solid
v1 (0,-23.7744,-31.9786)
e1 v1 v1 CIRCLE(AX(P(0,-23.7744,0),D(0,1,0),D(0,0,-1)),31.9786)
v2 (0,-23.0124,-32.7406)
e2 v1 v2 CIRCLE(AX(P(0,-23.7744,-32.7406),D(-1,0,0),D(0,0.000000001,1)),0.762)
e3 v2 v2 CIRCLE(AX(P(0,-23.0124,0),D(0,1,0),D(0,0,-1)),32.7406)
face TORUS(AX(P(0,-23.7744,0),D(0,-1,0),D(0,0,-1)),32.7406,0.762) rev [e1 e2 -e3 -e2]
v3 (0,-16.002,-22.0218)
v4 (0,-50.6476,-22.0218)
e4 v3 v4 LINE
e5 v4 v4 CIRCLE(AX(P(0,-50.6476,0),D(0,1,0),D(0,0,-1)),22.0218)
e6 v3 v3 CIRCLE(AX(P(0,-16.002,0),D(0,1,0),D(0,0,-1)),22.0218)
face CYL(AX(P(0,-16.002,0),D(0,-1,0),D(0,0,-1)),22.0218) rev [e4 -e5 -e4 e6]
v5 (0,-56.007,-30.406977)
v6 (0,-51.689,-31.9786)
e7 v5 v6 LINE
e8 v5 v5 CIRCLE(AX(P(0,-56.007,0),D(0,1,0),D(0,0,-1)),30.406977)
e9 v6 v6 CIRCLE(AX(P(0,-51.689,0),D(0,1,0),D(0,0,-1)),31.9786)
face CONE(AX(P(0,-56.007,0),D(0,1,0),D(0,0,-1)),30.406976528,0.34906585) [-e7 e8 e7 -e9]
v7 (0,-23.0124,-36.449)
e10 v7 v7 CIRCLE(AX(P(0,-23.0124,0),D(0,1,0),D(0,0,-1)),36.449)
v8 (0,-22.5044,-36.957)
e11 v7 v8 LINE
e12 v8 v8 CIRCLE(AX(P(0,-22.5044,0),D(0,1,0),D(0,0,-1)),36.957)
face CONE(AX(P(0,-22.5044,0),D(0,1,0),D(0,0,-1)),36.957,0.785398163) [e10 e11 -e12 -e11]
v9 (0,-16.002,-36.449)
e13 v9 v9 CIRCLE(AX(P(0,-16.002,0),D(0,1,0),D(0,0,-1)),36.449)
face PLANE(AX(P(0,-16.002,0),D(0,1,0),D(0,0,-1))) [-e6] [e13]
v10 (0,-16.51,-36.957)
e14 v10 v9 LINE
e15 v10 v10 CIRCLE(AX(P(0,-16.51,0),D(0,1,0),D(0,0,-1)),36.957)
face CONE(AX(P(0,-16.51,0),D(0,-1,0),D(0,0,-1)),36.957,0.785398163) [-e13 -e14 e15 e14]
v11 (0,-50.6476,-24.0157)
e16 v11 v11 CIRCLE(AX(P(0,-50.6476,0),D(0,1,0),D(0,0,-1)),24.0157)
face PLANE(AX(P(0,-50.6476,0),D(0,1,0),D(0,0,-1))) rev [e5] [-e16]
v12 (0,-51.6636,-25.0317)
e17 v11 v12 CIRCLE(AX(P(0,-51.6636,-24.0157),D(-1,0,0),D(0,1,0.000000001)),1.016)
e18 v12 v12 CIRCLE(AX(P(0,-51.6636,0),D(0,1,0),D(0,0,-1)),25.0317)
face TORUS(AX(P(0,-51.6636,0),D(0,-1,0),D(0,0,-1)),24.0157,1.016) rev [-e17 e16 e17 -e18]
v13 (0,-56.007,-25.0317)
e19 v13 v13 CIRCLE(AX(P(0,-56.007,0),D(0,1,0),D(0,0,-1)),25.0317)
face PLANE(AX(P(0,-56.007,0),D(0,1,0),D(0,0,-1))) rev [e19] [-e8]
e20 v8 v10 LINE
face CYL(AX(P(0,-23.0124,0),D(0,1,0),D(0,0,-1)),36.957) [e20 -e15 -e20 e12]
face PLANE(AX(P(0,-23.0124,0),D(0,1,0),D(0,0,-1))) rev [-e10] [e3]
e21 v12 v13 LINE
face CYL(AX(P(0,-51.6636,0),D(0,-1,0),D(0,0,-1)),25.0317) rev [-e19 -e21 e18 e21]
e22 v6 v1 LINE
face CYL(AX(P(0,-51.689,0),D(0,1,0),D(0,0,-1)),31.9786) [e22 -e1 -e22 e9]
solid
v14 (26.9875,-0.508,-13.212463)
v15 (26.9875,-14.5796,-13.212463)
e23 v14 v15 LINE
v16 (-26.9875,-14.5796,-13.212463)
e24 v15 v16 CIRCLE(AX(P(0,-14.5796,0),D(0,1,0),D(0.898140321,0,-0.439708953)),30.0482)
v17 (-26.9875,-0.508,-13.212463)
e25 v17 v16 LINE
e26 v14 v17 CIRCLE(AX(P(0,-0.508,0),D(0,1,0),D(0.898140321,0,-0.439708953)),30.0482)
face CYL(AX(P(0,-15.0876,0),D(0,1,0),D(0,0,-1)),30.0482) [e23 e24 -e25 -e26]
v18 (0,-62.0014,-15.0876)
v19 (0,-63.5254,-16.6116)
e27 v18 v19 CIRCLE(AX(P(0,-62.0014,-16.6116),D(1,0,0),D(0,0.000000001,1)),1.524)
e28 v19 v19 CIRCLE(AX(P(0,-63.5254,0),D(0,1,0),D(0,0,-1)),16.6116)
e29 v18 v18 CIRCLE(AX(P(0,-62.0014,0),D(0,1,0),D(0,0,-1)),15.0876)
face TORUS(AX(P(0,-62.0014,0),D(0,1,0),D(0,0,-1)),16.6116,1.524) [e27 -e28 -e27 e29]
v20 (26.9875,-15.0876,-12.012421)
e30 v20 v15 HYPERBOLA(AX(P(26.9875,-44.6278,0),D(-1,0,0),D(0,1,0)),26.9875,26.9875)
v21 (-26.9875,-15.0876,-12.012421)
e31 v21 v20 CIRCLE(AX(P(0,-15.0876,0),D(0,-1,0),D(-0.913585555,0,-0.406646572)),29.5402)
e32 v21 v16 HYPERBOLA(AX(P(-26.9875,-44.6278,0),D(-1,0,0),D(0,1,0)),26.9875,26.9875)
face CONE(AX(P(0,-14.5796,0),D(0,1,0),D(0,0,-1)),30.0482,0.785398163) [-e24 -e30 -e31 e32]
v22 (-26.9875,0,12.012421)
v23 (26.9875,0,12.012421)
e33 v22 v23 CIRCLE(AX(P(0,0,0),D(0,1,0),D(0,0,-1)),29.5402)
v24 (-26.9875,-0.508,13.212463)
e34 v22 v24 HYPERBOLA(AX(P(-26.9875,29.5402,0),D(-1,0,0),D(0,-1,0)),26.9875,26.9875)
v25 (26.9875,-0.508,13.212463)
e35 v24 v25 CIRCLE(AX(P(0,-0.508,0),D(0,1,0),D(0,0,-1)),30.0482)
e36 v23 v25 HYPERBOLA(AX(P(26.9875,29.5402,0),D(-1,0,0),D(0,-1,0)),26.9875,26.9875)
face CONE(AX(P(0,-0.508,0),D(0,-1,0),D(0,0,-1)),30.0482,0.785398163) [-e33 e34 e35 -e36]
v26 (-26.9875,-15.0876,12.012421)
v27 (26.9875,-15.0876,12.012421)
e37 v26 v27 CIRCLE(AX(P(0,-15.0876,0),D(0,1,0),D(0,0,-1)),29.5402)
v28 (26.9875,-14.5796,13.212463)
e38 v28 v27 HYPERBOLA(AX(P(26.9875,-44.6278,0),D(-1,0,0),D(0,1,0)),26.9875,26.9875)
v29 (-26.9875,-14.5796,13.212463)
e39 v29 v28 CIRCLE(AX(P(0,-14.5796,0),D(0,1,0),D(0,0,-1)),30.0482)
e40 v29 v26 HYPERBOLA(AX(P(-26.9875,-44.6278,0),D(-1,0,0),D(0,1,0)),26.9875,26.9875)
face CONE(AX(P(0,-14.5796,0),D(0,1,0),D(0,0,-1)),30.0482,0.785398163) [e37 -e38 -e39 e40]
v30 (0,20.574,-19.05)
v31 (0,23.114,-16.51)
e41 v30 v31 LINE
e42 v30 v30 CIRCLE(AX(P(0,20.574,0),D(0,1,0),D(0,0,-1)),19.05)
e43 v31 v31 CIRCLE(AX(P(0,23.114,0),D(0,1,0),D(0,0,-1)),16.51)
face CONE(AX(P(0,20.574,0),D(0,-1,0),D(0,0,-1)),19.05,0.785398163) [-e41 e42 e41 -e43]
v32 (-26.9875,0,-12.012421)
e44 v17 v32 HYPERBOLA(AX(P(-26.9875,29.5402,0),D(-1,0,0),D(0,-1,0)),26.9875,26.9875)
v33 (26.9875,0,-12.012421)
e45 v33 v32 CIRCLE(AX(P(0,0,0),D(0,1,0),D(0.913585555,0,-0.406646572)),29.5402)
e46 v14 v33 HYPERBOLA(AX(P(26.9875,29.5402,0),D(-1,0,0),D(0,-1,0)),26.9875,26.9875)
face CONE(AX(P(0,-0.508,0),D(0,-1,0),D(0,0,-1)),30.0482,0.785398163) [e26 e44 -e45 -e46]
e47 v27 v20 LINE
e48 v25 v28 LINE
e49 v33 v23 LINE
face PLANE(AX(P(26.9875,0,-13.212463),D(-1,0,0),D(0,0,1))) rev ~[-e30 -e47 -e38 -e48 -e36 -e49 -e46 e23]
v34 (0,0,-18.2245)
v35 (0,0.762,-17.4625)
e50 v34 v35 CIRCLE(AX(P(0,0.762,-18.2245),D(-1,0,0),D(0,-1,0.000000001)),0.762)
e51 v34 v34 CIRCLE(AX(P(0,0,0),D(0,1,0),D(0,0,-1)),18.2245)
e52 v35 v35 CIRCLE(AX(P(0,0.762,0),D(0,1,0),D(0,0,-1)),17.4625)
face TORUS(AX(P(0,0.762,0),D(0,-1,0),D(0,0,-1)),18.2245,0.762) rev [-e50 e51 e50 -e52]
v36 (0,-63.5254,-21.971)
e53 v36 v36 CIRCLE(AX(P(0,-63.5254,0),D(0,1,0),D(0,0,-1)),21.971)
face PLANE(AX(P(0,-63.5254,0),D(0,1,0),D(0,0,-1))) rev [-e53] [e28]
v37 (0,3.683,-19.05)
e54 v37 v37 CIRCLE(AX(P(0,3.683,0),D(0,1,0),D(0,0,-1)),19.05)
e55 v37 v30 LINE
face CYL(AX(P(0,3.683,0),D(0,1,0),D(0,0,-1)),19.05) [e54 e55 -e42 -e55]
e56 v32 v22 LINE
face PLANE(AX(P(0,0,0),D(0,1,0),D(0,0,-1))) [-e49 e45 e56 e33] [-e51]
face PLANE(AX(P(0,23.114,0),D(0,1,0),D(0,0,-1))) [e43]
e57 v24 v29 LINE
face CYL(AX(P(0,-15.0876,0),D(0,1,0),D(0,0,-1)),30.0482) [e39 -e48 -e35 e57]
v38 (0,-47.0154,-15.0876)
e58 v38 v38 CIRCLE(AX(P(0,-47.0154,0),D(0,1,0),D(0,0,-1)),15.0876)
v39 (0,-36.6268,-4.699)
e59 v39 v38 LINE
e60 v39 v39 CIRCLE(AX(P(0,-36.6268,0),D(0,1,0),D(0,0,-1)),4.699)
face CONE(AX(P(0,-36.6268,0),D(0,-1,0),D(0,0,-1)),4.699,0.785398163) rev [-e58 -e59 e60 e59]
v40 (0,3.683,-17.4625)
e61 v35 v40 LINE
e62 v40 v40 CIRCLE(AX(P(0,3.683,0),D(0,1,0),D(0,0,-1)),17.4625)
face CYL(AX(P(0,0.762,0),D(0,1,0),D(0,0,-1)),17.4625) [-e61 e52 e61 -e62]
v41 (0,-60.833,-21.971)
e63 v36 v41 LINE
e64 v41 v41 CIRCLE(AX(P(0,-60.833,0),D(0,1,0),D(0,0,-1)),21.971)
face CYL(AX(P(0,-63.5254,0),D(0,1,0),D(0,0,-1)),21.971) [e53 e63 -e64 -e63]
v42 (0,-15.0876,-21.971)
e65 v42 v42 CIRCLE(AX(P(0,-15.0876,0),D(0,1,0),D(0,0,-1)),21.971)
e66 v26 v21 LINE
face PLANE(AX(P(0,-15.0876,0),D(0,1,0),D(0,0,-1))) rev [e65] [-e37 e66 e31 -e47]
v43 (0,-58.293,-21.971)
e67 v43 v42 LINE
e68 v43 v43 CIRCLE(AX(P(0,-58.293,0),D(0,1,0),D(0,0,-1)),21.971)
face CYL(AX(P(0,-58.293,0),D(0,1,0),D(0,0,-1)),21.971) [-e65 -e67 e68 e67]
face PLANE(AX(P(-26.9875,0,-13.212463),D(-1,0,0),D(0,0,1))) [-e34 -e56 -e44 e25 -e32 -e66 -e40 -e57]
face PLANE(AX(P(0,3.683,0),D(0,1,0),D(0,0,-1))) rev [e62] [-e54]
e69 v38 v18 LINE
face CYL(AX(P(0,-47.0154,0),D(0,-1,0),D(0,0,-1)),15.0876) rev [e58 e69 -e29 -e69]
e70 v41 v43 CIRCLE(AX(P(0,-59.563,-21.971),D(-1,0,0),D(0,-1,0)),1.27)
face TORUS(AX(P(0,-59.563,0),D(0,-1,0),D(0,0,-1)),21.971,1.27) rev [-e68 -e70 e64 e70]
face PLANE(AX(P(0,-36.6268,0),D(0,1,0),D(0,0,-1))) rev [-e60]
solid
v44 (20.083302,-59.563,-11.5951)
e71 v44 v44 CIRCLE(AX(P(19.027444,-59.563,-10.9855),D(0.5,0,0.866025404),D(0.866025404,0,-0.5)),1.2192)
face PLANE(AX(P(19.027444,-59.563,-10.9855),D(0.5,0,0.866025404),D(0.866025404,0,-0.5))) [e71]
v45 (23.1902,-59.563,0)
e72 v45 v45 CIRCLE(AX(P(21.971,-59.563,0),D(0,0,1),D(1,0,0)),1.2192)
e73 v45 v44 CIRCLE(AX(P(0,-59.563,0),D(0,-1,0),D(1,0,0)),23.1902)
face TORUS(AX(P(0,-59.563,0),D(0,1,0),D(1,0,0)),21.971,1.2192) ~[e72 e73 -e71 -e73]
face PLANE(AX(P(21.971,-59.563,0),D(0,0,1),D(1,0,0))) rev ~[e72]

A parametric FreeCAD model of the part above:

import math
import FreeCAD as App
import Part
import Sketcher
Q = App.Units.Quantity


def edges_at(feature, points):
    """Names of the edges that pass closest to the given points."""
    edges = feature.Shape.Edges
    near = lambda p: min(range(len(edges)), key=lambda i: edges[i].distToShape(Part.Vertex(*p))[0])
    return sorted({f"Edge{near(p) + 1}" for p in points})

doc = App.newDocument("Part")
params = doc.addObject("Spreadsheet::Sheet", "Params")
for row, (alias, value) in enumerate([
    ("sketch1_radius", "0.06 in"),
    ("sketch1_radius2", "0.05 in"),
    ("sketch1_radius3", "0.03 in"),
    ("sketch1_width", "0.75 in"),
    ("sketch1_height", "0.59 in"),
    ("revolution_angle", "360 deg"),
    ("chamfer_size", "0.02 in"),
    ("chamfer2_size", "0.1 in"),
    ("sketch2_radius", "1.183 in"),
    ("sketch3_radius", "0.04 in"),
    ("sketch3_radius2", "0.03 in"),
    ("sketch3_width", "0.166 in"),
    ("sketch3_width2", "0.588 in"),
    ("sketch3_height", "1.364 in"),
    ("revolution2_angle", "360 deg"),
    ("chamfer3_size", "0.02 in"),
    ("sketch4_diameter", "0.096 in"),
    ("revolution3_angle", "330 deg"),
], start=1):
    params.set(f"A{row}", alias)
    params.set(f"B{row}", "=" + value)
    params.setAlias(f"B{row}", alias)

body = doc.addObject("PartDesign::Body", "Body")

sketch1 = body.newObject("Sketcher::SketchObject", "Sketch")
sketch1.AttachmentSupport = (doc.getObject("XY_Plane"), [""])
sketch1.MapMode = "FlatFace"
sketch1.addGeometry([
    Part.LineSegment(App.Vector(0, 23.1, 0), App.Vector(0, -36.6, 0)),
    Part.LineSegment(App.Vector(0, -36.6, 0), App.Vector(4.7, -36.6, 0)),
    Part.LineSegment(App.Vector(4.7, -36.6, 0), App.Vector(15.1, -47, 0)),
    Part.LineSegment(App.Vector(15.1, -47, 0), App.Vector(15.1, -62, 0)),
    Part.ArcOfCircle(Part.Circle(App.Vector(16.6, -62, 0), App.Vector(0, 0, 1), 1.5), math.radians(180), math.radians(270)),
    Part.LineSegment(App.Vector(16.6, -63.5, 0), App.Vector(22, -63.5, 0)),
    Part.LineSegment(App.Vector(22, -63.5, 0), App.Vector(22, -60.8, 0)),
    Part.ArcOfCircle(Part.Circle(App.Vector(22, -59.6, 0), App.Vector(0, 0, 1), 1.3), math.radians(90), math.radians(270)),
    Part.LineSegment(App.Vector(22, -58.3, 0), App.Vector(22, -15.1, 0)),
    Part.LineSegment(App.Vector(22, -15.1, 0), App.Vector(30, -15.1, 0)),
    Part.LineSegment(App.Vector(30, -15.1, 0), App.Vector(30, 0, 0)),
    Part.LineSegment(App.Vector(30, 0, 0), App.Vector(18.2, 0, 0)),
    Part.ArcOfCircle(Part.Circle(App.Vector(18.2, 0.8, 0), App.Vector(0, 0, 1), 0.8), math.radians(-180), math.radians(-90)),
    Part.LineSegment(App.Vector(17.5, 0.8, 0), App.Vector(17.5, 3.7, 0)),
    Part.LineSegment(App.Vector(17.5, 3.7, 0), App.Vector(19.1, 3.7, 0)),
    Part.LineSegment(App.Vector(19.1, 3.7, 0), App.Vector(19.1, 23.1, 0)),
    Part.LineSegment(App.Vector(19.1, 23.1, 0), App.Vector(0, 23.1, 0)),
], False)
sketch1.addConstraint([
    Sketcher.Constraint("Coincident", 0, 2, 1, 1),
    Sketcher.Constraint("Coincident", 1, 2, 2, 1),
    Sketcher.Constraint("Coincident", 2, 2, 3, 1),
    Sketcher.Constraint("Tangent", 3, 2, 4, 1),
    Sketcher.Constraint("Tangent", 4, 2, 5, 1),
    Sketcher.Constraint("Coincident", 5, 2, 6, 1),
    Sketcher.Constraint("Coincident", 6, 2, 7, 2),
    Sketcher.Constraint("Coincident", 7, 1, 8, 1),
    Sketcher.Constraint("Coincident", 8, 2, 9, 1),
    Sketcher.Constraint("Coincident", 9, 2, 10, 1),
    Sketcher.Constraint("Coincident", 10, 2, 11, 1),
    Sketcher.Constraint("Tangent", 11, 2, 12, 2),
    Sketcher.Constraint("Tangent", 12, 1, 13, 1),
    Sketcher.Constraint("Coincident", 13, 2, 14, 1),
    Sketcher.Constraint("Coincident", 14, 2, 15, 1),
    Sketcher.Constraint("Coincident", 15, 2, 16, 1),
    Sketcher.Constraint("Coincident", 16, 2, 0, 1),
    Sketcher.Constraint("Vertical", 0),
    Sketcher.Constraint("Horizontal", 1),
    Sketcher.Constraint("Vertical", 3),
    Sketcher.Constraint("Horizontal", 5),
    Sketcher.Constraint("Vertical", 6),
    Sketcher.Constraint("Vertical", 8),
    Sketcher.Constraint("Horizontal", 9),
    Sketcher.Constraint("Vertical", 10),
    Sketcher.Constraint("Horizontal", 11),
    Sketcher.Constraint("Vertical", 13),
    Sketcher.Constraint("Horizontal", 14),
    Sketcher.Constraint("Vertical", 15),
    Sketcher.Constraint("Horizontal", 16),
    Sketcher.Constraint("PointOnObject", 0, 2, -2),
    Sketcher.Constraint("PointOnObject", 10, 2, -1),
    Sketcher.Constraint("Vertical", 7, 3, 5, 2),
    Sketcher.Constraint("Vertical", 6, 2, 7, 1),
    Sketcher.Constraint("Radius", 4, Q("0.06 in")),
    Sketcher.Constraint("Radius", 7, Q("0.05 in")),
    Sketcher.Constraint("Radius", 12, Q("0.03 in")),
    Sketcher.Constraint("Angle", 2, Q("-45 deg")),
    Sketcher.Constraint("DistanceX", 16, 2, 16, 1, Q("0.75 in")),
    Sketcher.Constraint("DistanceY", 3, 2, 3, 1, Q("0.59 in")),
    Sketcher.Constraint("DistanceX", 1, 1, 1, 2, Q("0.185 in")),
    Sketcher.Constraint("DistanceX", 5, 1, 5, 2, Q("0.211 in")),
    Sketcher.Constraint("DistanceX", 9, 1, 9, 2, Q("0.318 in")),
    Sketcher.Constraint("DistanceX", 14, 1, 14, 2, Q("0.0625 in")),
    Sketcher.Constraint("DistanceY", 0, 2, 0, 1, Q("2.352 in")),
    Sketcher.Constraint("DistanceY", 6, 1, 6, 2, Q("0.106 in")),
    Sketcher.Constraint("DistanceY", 8, 1, 8, 2, Q("1.701 in")),
    Sketcher.Constraint("DistanceY", 10, 1, 10, 2, Q("0.594 in")),
    Sketcher.Constraint("DistanceY", 13, 1, 13, 2, Q("0.115 in")),
    Sketcher.Constraint("DistanceY", 15, 1, 15, 2, Q("0.765 in")),
])
sketch1.setExpression("Constraints[34]", "Params.sketch1_radius")
sketch1.setExpression("Constraints[35]", "Params.sketch1_radius2")
sketch1.setExpression("Constraints[36]", "Params.sketch1_radius3")
sketch1.setExpression("Constraints[38]", "Params.sketch1_width")
sketch1.setExpression("Constraints[39]", "Params.sketch1_height")
revolution = body.newObject("PartDesign::Revolution", "Revolution")
revolution.Profile = sketch1
revolution.ReferenceAxis = (sketch1, ["V_Axis"])
revolution.setExpression("Angle", "Params.revolution_angle")
doc.recompute()

chamfer = body.newObject("PartDesign::Chamfer", "Chamfer")
chamfer.Base = (revolution, edges_at(revolution, [(0, -15.088, 30.048), (0, 0, 30.048)]))
chamfer.setExpression("Size", "Params.chamfer_size")
doc.recompute()

chamfer2 = body.newObject("PartDesign::Chamfer", "Chamfer001")
chamfer2.Base = (chamfer, edges_at(chamfer, [(0, 23.114, 19.05)]))
chamfer2.setExpression("Size", "Params.chamfer2_size")

sketch2 = body.newObject("Sketcher::SketchObject", "Sketch001")
sketch2.AttachmentSupport = (doc.getObject("XZ_Plane"), [""])
sketch2.MapMode = "FlatFace"
sketch2.addGeometry([
    Part.LineSegment(App.Vector(-27, 13, 0), App.Vector(-27, -13, 0)),
    Part.ArcOfCircle(Part.Circle(App.Vector(0, 0, 0), App.Vector(0, 0, 1), 30), math.radians(154), math.radians(206)),
    Part.LineSegment(App.Vector(27, -13, 0), App.Vector(27, 13, 0)),
    Part.ArcOfCircle(Part.Circle(App.Vector(0, 0, 0), App.Vector(0, 0, 1), 30), math.radians(-26), math.radians(26)),
], False)
sketch2.addConstraint([
    Sketcher.Constraint("Coincident", 0, 1, 1, 1),
    Sketcher.Constraint("Coincident", 1, 2, 0, 2),
    Sketcher.Constraint("Coincident", 2, 1, 3, 1),
    Sketcher.Constraint("Coincident", 3, 2, 2, 2),
    Sketcher.Constraint("Vertical", 0),
    Sketcher.Constraint("Vertical", 2),
    Sketcher.Constraint("Coincident", 1, 3, -1, 1),
    Sketcher.Constraint("Coincident", 3, 3, -1, 1),
    Sketcher.Constraint("Equal", 1, 3),
    Sketcher.Constraint("Horizontal", 1, 2, 2, 1),
    Sketcher.Constraint("Radius", 1, Q("1.183 in")),
    Sketcher.Constraint("DistanceX", 0, 1, -1, 1, Q("1.0625 in")),
])
sketch2.setExpression("Constraints[10]", "Params.sketch2_radius")
pocket1 = body.newObject("PartDesign::Pocket", "Pocket")
pocket1.Profile = sketch2
pocket1.Type = "ThroughAll"
pocket1.Reversed = True
body2 = doc.addObject("PartDesign::Body", "Body001")

sketch3 = body2.newObject("Sketcher::SketchObject", "Sketch002")
sketch3.AttachmentSupport = (doc.getObject("XY_Plane001"), [""])
sketch3.MapMode = "FlatFace"
sketch3.addGeometry([
    Part.LineSegment(App.Vector(22, -16, 0), App.Vector(22, -50.6, 0)),
    Part.LineSegment(App.Vector(22, -50.6, 0), App.Vector(24, -50.6, 0)),
    Part.ArcOfCircle(Part.Circle(App.Vector(24, -51.7, 0), App.Vector(0, 0, 1), 1), math.radians(0), math.radians(90)),
    Part.LineSegment(App.Vector(25, -51.7, 0), App.Vector(25, -56, 0)),
    Part.LineSegment(App.Vector(25, -56, 0), App.Vector(30.4, -56, 0)),
    Part.LineSegment(App.Vector(30.4, -56, 0), App.Vector(32, -51.7, 0)),
    Part.LineSegment(App.Vector(32, -51.7, 0), App.Vector(32, -23.8, 0)),
    Part.ArcOfCircle(Part.Circle(App.Vector(32.7, -23.8, 0), App.Vector(0, 0, 1), 0.8), math.radians(90), math.radians(180)),
    Part.LineSegment(App.Vector(32.7, -23, 0), App.Vector(37, -23, 0)),
    Part.LineSegment(App.Vector(37, -23, 0), App.Vector(37, -16, 0)),
    Part.LineSegment(App.Vector(37, -16, 0), App.Vector(22, -16, 0)),
], False)
sketch3.addConstraint([
    Sketcher.Constraint("Coincident", 0, 2, 1, 1),
    Sketcher.Constraint("Tangent", 1, 2, 2, 2),
    Sketcher.Constraint("Tangent", 2, 1, 3, 1),
    Sketcher.Constraint("Coincident", 3, 2, 4, 1),
    Sketcher.Constraint("Coincident", 4, 2, 5, 1),
    Sketcher.Constraint("Coincident", 5, 2, 6, 1),
    Sketcher.Constraint("Tangent", 6, 2, 7, 2),
    Sketcher.Constraint("Tangent", 7, 1, 8, 1),
    Sketcher.Constraint("Coincident", 8, 2, 9, 1),
    Sketcher.Constraint("Coincident", 9, 2, 10, 1),
    Sketcher.Constraint("Coincident", 10, 2, 0, 1),
    Sketcher.Constraint("Vertical", 0),
    Sketcher.Constraint("Horizontal", 1),
    Sketcher.Constraint("Vertical", 3),
    Sketcher.Constraint("Horizontal", 4),
    Sketcher.Constraint("Vertical", 6),
    Sketcher.Constraint("Horizontal", 8),
    Sketcher.Constraint("Vertical", 9),
    Sketcher.Constraint("Horizontal", 10),
    Sketcher.Constraint("Radius", 2, Q("0.04 in")),
    Sketcher.Constraint("Radius", 7, Q("0.03 in")),
    Sketcher.Constraint("Angle", 5, Q("70 deg")),
    Sketcher.Constraint("DistanceX", 8, 1, 8, 2, Q("0.166 in")),
    Sketcher.Constraint("DistanceX", 10, 2, 10, 1, Q("0.588 in")),
    Sketcher.Constraint("DistanceY", 0, 2, 0, 1, Q("1.364 in")),
    Sketcher.Constraint("DistanceY", 3, 2, 3, 1, Q("0.171 in")),
    Sketcher.Constraint("DistanceY", 6, 1, 6, 2, Q("1.099 in")),
    Sketcher.Constraint("DistanceY", 9, 1, 9, 2, Q("0.276 in")),
    Sketcher.Constraint("DistanceY", 9, 2, -1, 1, Q("0.63 in")),
    Sketcher.Constraint("DistanceX", 1, 1, 1, 2, Q("0.0785 in")),
    Sketcher.Constraint("DistanceX", -1, 1, 7, 3, Q("1.289 in")),
])
sketch3.setExpression("Constraints[19]", "Params.sketch3_radius")
sketch3.setExpression("Constraints[20]", "Params.sketch3_radius2")
sketch3.setExpression("Constraints[22]", "Params.sketch3_width")
sketch3.setExpression("Constraints[23]", "Params.sketch3_width2")
sketch3.setExpression("Constraints[24]", "Params.sketch3_height")
revolution2 = body2.newObject("PartDesign::Revolution", "Revolution001")
revolution2.Profile = sketch3
revolution2.ReferenceAxis = (sketch3, ["V_Axis"])
revolution2.setExpression("Angle", "Params.revolution2_angle")
doc.recompute()

chamfer3 = body2.newObject("PartDesign::Chamfer", "Chamfer002")
chamfer3.Base = (revolution2, edges_at(revolution2, [(0, -16.002, 36.957), (0, -23.012, 36.957)]))
chamfer3.setExpression("Size", "Params.chamfer3_size")
body3 = doc.addObject("PartDesign::Body", "Body002")

sketch4 = body3.newObject("Sketcher::SketchObject", "Sketch003")
sketch4.AttachmentSupport = (doc.getObject("XY_Plane002"), [""])
sketch4.MapMode = "FlatFace"
sketch4.addGeometry(Part.Circle(App.Vector(22, -59.6, 0), App.Vector(0, 0, 1), 1.2), False)
sketch4.addConstraint([
    Sketcher.Constraint("Diameter", 0, Q("0.096 in")),
    Sketcher.Constraint("DistanceX", -1, 1, 0, 3, Q("0.865 in")),
    Sketcher.Constraint("DistanceY", 0, 3, -1, 1, Q("2.345 in")),
])
sketch4.setExpression("Constraints[0]", "Params.sketch4_diameter")
revolution3 = body3.newObject("PartDesign::Revolution", "Revolution002")
revolution3.Profile = sketch4
revolution3.ReferenceAxis = (sketch4, ["V_Axis"])
revolution3.setExpression("Angle", "Params.revolution3_angle")
revolution3.Reversed = True

doc.recompute()
